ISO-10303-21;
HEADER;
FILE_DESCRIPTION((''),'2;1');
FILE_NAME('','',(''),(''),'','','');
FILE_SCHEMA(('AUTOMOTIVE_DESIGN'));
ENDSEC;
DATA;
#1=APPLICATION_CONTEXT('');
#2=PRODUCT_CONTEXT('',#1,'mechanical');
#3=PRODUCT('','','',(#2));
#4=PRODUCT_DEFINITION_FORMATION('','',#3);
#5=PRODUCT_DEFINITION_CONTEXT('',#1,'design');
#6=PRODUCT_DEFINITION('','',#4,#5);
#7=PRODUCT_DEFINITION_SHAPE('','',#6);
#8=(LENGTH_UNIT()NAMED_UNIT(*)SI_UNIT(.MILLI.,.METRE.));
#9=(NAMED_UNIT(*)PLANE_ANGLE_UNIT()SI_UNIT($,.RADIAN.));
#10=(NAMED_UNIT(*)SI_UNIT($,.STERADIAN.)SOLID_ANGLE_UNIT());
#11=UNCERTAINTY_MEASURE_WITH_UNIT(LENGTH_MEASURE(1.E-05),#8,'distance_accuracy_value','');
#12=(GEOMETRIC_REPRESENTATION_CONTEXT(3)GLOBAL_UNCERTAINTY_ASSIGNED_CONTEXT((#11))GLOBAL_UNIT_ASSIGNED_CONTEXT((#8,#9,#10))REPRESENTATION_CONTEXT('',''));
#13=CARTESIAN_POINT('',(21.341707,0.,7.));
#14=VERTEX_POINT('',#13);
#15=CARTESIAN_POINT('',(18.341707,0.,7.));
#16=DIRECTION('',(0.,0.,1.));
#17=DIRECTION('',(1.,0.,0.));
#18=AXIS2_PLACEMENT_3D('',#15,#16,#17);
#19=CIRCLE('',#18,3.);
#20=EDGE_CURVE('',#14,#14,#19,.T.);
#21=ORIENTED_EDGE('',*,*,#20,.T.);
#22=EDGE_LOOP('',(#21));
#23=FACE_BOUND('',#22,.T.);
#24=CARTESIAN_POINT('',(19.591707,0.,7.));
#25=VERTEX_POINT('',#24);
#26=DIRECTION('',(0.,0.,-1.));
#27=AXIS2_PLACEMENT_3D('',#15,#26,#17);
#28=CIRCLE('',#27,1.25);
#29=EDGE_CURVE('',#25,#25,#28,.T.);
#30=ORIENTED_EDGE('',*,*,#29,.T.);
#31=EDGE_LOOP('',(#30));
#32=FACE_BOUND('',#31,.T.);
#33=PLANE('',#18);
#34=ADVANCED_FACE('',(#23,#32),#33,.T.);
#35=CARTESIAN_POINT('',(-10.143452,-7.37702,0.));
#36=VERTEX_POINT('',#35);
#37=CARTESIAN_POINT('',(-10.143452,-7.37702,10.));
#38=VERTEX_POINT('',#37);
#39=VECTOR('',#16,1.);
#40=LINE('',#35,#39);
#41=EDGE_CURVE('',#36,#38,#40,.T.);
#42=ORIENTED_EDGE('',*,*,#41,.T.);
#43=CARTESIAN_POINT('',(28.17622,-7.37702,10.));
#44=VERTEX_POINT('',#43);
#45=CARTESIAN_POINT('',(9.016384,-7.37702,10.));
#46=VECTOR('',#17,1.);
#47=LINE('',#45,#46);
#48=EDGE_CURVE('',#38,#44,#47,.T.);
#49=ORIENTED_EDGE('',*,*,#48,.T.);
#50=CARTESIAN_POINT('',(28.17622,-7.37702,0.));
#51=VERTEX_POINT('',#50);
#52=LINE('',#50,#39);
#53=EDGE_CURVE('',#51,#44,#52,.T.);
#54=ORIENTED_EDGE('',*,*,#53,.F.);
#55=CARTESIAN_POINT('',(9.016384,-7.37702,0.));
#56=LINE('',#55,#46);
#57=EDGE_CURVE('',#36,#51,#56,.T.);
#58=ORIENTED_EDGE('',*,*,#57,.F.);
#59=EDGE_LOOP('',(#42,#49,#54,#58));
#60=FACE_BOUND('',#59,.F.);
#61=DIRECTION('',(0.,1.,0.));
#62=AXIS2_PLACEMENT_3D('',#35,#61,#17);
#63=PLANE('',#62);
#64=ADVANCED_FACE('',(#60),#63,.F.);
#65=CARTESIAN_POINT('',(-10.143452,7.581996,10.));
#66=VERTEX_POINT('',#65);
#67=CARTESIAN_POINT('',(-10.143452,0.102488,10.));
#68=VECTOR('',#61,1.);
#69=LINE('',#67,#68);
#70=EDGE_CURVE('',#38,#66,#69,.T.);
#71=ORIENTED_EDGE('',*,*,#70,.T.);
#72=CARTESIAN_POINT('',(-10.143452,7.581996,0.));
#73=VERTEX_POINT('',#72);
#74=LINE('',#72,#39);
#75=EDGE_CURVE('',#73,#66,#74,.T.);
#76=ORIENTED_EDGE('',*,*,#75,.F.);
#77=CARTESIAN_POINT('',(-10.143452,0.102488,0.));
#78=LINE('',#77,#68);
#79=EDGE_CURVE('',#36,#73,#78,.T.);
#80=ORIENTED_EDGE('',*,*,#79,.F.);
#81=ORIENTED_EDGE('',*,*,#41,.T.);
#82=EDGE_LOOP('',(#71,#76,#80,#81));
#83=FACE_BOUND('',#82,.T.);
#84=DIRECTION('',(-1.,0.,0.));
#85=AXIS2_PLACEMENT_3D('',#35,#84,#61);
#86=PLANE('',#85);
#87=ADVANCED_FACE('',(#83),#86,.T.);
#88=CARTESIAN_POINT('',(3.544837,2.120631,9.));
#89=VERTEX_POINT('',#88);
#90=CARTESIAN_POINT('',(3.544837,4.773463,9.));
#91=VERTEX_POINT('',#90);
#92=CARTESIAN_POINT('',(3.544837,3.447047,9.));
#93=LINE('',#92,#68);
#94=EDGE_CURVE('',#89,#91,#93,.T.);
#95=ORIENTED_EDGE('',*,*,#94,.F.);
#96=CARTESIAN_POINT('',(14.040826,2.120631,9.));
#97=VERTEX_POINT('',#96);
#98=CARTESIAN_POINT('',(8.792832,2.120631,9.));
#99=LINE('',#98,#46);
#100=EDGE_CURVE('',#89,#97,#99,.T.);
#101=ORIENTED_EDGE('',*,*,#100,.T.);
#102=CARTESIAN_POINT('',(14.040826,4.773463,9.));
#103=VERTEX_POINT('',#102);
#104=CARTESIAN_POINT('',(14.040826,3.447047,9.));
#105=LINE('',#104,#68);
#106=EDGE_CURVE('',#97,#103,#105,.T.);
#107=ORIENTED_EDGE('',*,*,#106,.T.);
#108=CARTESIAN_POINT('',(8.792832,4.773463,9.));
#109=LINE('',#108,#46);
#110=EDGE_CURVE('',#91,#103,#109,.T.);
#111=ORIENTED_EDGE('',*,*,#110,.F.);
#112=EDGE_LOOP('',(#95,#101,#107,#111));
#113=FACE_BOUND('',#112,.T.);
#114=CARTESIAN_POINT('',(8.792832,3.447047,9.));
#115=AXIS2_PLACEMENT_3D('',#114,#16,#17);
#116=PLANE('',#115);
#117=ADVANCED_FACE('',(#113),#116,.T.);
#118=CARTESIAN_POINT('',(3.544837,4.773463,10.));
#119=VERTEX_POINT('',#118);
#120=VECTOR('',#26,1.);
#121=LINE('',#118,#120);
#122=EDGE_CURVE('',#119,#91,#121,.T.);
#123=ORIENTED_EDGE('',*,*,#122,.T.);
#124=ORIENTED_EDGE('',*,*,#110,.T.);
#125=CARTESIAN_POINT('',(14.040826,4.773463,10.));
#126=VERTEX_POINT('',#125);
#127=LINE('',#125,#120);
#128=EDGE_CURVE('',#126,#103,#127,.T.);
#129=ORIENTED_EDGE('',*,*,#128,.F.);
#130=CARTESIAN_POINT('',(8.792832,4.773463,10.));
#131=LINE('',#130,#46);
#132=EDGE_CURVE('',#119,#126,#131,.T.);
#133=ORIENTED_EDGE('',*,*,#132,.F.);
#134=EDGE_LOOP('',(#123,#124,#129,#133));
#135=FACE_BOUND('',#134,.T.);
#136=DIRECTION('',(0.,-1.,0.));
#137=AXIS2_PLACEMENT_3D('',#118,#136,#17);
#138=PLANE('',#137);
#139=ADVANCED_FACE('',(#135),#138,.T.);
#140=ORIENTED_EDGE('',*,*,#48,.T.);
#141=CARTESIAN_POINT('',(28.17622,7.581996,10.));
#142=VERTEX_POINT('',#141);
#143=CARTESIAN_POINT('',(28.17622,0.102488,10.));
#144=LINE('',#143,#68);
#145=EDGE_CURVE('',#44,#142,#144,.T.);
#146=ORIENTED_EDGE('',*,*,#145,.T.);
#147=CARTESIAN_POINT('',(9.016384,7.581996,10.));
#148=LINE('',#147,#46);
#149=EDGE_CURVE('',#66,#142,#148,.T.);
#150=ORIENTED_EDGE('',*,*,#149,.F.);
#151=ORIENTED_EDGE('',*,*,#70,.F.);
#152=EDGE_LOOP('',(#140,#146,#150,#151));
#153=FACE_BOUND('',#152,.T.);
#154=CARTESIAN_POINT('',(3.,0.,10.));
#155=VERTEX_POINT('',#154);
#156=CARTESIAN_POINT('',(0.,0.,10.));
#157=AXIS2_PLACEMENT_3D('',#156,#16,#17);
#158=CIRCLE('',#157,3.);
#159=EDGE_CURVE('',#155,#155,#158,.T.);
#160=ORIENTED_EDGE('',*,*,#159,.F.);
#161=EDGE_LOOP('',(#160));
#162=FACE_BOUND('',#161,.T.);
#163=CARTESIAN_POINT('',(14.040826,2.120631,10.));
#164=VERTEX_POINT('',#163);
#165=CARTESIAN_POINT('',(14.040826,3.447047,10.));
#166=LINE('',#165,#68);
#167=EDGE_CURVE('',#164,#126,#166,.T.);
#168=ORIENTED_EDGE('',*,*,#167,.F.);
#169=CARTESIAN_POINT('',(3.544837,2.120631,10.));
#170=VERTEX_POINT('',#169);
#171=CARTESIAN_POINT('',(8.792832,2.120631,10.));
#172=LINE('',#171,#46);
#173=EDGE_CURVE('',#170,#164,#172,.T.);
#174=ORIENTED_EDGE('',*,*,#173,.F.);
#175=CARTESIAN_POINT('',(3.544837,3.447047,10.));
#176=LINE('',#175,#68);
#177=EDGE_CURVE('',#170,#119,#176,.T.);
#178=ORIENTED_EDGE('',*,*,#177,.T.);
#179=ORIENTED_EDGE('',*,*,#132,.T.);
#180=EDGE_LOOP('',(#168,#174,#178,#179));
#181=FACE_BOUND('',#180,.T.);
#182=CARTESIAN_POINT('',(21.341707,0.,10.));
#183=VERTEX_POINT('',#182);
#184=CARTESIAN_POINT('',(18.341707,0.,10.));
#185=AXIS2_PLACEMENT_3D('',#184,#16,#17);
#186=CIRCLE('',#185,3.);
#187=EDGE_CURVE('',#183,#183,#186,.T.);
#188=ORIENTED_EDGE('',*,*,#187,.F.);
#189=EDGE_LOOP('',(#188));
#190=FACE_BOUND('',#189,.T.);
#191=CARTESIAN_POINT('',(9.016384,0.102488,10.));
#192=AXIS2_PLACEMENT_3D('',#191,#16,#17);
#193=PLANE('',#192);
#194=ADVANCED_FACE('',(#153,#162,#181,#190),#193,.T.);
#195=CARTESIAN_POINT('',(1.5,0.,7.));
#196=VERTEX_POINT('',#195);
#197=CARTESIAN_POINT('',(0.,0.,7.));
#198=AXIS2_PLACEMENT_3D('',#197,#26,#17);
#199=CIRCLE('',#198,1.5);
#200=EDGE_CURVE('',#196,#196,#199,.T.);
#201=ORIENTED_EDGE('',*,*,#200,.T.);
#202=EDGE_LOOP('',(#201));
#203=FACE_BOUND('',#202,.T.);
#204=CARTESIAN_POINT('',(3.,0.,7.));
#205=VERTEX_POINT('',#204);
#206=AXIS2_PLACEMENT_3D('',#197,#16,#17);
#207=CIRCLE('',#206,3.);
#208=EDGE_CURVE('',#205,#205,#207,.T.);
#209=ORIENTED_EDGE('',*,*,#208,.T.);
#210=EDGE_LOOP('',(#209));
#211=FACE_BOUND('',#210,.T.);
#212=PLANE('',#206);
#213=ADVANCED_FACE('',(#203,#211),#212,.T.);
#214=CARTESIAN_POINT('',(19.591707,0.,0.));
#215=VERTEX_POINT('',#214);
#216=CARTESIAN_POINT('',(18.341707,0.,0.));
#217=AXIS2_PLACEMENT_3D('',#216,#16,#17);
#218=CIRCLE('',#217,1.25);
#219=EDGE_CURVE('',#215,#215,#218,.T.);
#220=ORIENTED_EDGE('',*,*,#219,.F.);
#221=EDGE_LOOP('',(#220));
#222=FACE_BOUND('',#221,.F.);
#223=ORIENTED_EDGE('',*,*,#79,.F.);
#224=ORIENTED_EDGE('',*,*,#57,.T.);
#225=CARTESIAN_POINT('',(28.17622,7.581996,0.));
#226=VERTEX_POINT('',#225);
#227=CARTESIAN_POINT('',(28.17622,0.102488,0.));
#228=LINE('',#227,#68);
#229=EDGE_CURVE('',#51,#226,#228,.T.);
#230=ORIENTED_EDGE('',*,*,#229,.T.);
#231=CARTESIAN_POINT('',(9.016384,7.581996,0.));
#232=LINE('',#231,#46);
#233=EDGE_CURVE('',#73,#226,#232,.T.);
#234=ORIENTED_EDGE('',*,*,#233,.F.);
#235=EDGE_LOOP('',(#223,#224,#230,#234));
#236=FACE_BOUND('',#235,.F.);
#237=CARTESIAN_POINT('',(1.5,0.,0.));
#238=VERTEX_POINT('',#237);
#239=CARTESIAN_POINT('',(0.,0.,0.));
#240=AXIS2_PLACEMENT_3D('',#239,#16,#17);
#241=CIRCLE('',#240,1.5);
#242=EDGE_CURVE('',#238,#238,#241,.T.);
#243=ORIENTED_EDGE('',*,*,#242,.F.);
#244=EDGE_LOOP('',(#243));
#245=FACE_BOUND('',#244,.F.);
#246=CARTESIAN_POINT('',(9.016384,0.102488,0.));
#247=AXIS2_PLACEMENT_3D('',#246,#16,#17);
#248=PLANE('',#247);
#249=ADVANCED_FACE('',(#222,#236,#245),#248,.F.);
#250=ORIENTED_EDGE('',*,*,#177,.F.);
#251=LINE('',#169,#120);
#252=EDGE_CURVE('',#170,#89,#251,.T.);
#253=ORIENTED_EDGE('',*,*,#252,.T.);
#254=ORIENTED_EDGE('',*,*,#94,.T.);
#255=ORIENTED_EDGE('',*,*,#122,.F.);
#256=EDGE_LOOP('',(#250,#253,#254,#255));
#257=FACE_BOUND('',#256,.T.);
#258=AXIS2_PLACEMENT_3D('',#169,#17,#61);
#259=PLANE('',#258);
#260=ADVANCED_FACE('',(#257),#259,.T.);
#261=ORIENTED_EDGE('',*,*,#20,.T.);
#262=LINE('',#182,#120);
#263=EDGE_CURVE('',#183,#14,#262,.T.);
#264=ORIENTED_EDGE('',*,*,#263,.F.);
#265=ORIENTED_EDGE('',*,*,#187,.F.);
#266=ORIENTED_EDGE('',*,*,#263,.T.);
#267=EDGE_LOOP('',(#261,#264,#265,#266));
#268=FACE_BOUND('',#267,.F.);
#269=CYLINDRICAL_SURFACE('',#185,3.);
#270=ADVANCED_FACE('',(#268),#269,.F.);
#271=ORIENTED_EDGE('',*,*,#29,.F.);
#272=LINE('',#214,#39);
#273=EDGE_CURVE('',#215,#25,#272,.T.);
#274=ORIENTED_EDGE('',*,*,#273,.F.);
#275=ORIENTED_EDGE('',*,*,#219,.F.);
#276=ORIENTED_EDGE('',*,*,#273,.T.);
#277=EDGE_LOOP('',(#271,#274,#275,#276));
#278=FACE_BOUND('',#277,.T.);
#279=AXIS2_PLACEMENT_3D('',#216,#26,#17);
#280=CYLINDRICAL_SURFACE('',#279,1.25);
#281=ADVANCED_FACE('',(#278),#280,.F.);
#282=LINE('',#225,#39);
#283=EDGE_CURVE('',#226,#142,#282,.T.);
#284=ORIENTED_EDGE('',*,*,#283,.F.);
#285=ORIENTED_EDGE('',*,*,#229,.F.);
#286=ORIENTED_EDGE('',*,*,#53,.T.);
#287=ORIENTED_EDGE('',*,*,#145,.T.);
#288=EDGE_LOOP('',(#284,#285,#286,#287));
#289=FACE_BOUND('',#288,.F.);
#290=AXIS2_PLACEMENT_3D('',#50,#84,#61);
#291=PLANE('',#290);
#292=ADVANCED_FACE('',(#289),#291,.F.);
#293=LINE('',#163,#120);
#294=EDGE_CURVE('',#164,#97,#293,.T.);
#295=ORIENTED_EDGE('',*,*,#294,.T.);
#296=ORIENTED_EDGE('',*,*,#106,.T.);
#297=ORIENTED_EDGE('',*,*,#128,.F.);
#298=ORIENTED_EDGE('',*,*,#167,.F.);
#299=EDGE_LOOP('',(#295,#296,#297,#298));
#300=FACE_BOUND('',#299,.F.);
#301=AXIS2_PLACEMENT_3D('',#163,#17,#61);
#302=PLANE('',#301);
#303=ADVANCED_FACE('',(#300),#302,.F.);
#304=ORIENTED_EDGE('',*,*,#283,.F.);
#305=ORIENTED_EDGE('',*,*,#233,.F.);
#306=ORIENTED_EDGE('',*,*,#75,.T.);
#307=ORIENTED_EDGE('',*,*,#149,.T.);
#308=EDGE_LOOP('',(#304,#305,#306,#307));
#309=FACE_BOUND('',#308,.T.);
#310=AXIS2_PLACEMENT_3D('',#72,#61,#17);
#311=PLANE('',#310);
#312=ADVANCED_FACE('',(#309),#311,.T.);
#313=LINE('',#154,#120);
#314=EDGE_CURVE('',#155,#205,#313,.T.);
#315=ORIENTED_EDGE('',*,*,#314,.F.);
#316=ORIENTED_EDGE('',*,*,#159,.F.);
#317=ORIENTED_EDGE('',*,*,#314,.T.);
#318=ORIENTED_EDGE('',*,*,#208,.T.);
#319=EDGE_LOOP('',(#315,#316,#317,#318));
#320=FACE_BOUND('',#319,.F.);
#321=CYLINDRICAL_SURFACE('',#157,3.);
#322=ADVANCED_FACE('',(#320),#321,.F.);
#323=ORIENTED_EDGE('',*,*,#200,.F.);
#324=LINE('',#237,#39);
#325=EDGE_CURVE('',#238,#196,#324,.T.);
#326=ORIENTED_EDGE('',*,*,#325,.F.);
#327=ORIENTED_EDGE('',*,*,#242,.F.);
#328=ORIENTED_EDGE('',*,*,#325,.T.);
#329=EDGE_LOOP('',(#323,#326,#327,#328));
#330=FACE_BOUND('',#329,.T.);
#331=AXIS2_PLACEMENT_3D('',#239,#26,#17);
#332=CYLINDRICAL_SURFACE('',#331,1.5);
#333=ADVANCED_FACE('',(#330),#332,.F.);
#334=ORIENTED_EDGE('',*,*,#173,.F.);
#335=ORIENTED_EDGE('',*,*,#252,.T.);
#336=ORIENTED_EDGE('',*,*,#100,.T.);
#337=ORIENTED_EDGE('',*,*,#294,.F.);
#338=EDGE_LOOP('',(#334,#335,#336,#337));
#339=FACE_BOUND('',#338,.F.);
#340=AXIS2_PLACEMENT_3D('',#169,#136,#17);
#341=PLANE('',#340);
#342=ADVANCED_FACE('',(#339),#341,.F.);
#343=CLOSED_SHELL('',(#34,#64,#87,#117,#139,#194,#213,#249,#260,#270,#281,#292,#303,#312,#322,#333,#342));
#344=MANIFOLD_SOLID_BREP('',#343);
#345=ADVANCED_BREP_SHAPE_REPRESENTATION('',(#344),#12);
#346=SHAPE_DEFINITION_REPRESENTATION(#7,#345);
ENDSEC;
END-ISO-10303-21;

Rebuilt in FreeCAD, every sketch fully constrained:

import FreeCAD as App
import Part
import Sketcher
Q = App.Units.Quantity

doc = App.newDocument("Part")
body = doc.addObject("PartDesign::Body", "Body")

sketch1 = body.newObject("Sketcher::SketchObject", "Sketch")
sketch1.AttachmentSupport = (doc.getObject("XY_Plane"), [""])
sketch1.MapMode = "FlatFace"
sketch1.addGeometry([
    Part.LineSegment(App.Vector(-10, 8, 0), App.Vector(-10, -7, 0)),
    Part.LineSegment(App.Vector(-10, -7, 0), App.Vector(28, -7, 0)),
    Part.LineSegment(App.Vector(28, -7, 0), App.Vector(28, 8, 0)),
    Part.LineSegment(App.Vector(28, 8, 0), App.Vector(-10, 8, 0)),
], False)
sketch1.addConstraint([
    Sketcher.Constraint("Coincident", 0, 2, 1, 1),
    Sketcher.Constraint("Coincident", 1, 2, 2, 1),
    Sketcher.Constraint("Coincident", 2, 2, 3, 1),
    Sketcher.Constraint("Coincident", 3, 2, 0, 1),
    Sketcher.Constraint("Vertical", 0),
    Sketcher.Constraint("Horizontal", 1),
    Sketcher.Constraint("Vertical", 2),
    Sketcher.Constraint("Horizontal", 3),
    Sketcher.Constraint("DistanceX", 1, 1, 1, 2, Q("38.319672 mm")),
    Sketcher.Constraint("DistanceY", 0, 2, 0, 1, Q("14.959016 mm")),
    Sketcher.Constraint("DistanceY", 0, 2, -1, 1, Q("7.37702 mm")),
    Sketcher.Constraint("DistanceX", -1, 1, 1, 2, Q("28.17622 mm")),
])
pad1 = body.newObject("PartDesign::Pad", "Pad")
pad1.Profile = sketch1
pad1.Length = 10

sketch2 = body.newObject("Sketcher::SketchObject", "Sketch001")
sketch2.AttachmentSupport = (doc.getObject("XY_Plane"), [""])
sketch2.MapMode = "FlatFace"
sketch2.addGeometry([
    Part.Circle(App.Vector(0, 0, 0), App.Vector(0, 0, 1), 1.5),
    Part.Circle(App.Vector(18.3, 0, 0), App.Vector(0, 0, 1), 1.2),
], False)
sketch2.addConstraint([
    Sketcher.Constraint("Coincident", 0, 3, -1, 1),
    Sketcher.Constraint("PointOnObject", 1, 3, -1),
    Sketcher.Constraint("Diameter", 0, Q("3 mm")),
    Sketcher.Constraint("Diameter", 1, Q("2.5 mm")),
    Sketcher.Constraint("DistanceX", -1, 1, 1, 3, Q("18.341707 mm")),
])
pocket1 = body.newObject("PartDesign::Pocket", "Pocket")
pocket1.Profile = sketch2
pocket1.Type = "ThroughAll"
pocket1.Reversed = True

sketch3 = body.newObject("Sketcher::SketchObject", "Sketch002")
sketch3.AttachmentSupport = (doc.getObject("XY_Plane"), [""])
sketch3.MapMode = "FlatFace"
sketch3.AttachmentOffset = App.Placement(App.Vector(0, 0, 10), App.Rotation())
sketch3.addGeometry([
    Part.LineSegment(App.Vector(3.5, 4.8, 0), App.Vector(3.5, 2.1, 0)),
    Part.LineSegment(App.Vector(3.5, 2.1, 0), App.Vector(14, 2.1, 0)),
    Part.LineSegment(App.Vector(14, 2.1, 0), App.Vector(14, 4.8, 0)),
    Part.LineSegment(App.Vector(14, 4.8, 0), App.Vector(3.5, 4.8, 0)),
], False)
sketch3.addConstraint([
    Sketcher.Constraint("Coincident", 0, 2, 1, 1),
    Sketcher.Constraint("Coincident", 1, 2, 2, 1),
    Sketcher.Constraint("Coincident", 2, 2, 3, 1),
    Sketcher.Constraint("Coincident", 3, 2, 0, 1),
    Sketcher.Constraint("Vertical", 0),
    Sketcher.Constraint("Horizontal", 1),
    Sketcher.Constraint("Vertical", 2),
    Sketcher.Constraint("Horizontal", 3),
    Sketcher.Constraint("DistanceX", 1, 1, 1, 2, Q("10.495989 mm")),
    Sketcher.Constraint("DistanceY", 0, 2, 0, 1, Q("2.652832 mm")),
    Sketcher.Constraint("DistanceY", -1, 1, 0, 2, Q("2.120631 mm")),
    Sketcher.Constraint("DistanceX", -1, 1, 0, 2, Q("3.544837 mm")),
])
pocket2 = body.newObject("PartDesign::Pocket", "Pocket001")
pocket2.Profile = sketch3
pocket2.Length = 1

sketch4 = body.newObject("Sketcher::SketchObject", "Sketch003")
sketch4.AttachmentSupport = (doc.getObject("XY_Plane"), [""])
sketch4.MapMode = "FlatFace"
sketch4.AttachmentOffset = App.Placement(App.Vector(0, 0, 10), App.Rotation())
sketch4.addGeometry([
    Part.Circle(App.Vector(0, 0, 0), App.Vector(0, 0, 1), 3),
    Part.Circle(App.Vector(18.3, 0, 0), App.Vector(0, 0, 1), 3),
], False)
sketch4.addConstraint([
    Sketcher.Constraint("Coincident", 0, 3, -1, 1),
    Sketcher.Constraint("Equal", 0, 1),
    Sketcher.Constraint("PointOnObject", 1, 3, -1),
    Sketcher.Constraint("Diameter", 0, Q("6 mm")),
    Sketcher.Constraint("DistanceX", -1, 1, 1, 3, Q("18.341707 mm")),
])
pocket3 = body.newObject("PartDesign::Pocket", "Pocket002")
pocket3.Profile = sketch4
pocket3.Length = 3

doc.recompute()
